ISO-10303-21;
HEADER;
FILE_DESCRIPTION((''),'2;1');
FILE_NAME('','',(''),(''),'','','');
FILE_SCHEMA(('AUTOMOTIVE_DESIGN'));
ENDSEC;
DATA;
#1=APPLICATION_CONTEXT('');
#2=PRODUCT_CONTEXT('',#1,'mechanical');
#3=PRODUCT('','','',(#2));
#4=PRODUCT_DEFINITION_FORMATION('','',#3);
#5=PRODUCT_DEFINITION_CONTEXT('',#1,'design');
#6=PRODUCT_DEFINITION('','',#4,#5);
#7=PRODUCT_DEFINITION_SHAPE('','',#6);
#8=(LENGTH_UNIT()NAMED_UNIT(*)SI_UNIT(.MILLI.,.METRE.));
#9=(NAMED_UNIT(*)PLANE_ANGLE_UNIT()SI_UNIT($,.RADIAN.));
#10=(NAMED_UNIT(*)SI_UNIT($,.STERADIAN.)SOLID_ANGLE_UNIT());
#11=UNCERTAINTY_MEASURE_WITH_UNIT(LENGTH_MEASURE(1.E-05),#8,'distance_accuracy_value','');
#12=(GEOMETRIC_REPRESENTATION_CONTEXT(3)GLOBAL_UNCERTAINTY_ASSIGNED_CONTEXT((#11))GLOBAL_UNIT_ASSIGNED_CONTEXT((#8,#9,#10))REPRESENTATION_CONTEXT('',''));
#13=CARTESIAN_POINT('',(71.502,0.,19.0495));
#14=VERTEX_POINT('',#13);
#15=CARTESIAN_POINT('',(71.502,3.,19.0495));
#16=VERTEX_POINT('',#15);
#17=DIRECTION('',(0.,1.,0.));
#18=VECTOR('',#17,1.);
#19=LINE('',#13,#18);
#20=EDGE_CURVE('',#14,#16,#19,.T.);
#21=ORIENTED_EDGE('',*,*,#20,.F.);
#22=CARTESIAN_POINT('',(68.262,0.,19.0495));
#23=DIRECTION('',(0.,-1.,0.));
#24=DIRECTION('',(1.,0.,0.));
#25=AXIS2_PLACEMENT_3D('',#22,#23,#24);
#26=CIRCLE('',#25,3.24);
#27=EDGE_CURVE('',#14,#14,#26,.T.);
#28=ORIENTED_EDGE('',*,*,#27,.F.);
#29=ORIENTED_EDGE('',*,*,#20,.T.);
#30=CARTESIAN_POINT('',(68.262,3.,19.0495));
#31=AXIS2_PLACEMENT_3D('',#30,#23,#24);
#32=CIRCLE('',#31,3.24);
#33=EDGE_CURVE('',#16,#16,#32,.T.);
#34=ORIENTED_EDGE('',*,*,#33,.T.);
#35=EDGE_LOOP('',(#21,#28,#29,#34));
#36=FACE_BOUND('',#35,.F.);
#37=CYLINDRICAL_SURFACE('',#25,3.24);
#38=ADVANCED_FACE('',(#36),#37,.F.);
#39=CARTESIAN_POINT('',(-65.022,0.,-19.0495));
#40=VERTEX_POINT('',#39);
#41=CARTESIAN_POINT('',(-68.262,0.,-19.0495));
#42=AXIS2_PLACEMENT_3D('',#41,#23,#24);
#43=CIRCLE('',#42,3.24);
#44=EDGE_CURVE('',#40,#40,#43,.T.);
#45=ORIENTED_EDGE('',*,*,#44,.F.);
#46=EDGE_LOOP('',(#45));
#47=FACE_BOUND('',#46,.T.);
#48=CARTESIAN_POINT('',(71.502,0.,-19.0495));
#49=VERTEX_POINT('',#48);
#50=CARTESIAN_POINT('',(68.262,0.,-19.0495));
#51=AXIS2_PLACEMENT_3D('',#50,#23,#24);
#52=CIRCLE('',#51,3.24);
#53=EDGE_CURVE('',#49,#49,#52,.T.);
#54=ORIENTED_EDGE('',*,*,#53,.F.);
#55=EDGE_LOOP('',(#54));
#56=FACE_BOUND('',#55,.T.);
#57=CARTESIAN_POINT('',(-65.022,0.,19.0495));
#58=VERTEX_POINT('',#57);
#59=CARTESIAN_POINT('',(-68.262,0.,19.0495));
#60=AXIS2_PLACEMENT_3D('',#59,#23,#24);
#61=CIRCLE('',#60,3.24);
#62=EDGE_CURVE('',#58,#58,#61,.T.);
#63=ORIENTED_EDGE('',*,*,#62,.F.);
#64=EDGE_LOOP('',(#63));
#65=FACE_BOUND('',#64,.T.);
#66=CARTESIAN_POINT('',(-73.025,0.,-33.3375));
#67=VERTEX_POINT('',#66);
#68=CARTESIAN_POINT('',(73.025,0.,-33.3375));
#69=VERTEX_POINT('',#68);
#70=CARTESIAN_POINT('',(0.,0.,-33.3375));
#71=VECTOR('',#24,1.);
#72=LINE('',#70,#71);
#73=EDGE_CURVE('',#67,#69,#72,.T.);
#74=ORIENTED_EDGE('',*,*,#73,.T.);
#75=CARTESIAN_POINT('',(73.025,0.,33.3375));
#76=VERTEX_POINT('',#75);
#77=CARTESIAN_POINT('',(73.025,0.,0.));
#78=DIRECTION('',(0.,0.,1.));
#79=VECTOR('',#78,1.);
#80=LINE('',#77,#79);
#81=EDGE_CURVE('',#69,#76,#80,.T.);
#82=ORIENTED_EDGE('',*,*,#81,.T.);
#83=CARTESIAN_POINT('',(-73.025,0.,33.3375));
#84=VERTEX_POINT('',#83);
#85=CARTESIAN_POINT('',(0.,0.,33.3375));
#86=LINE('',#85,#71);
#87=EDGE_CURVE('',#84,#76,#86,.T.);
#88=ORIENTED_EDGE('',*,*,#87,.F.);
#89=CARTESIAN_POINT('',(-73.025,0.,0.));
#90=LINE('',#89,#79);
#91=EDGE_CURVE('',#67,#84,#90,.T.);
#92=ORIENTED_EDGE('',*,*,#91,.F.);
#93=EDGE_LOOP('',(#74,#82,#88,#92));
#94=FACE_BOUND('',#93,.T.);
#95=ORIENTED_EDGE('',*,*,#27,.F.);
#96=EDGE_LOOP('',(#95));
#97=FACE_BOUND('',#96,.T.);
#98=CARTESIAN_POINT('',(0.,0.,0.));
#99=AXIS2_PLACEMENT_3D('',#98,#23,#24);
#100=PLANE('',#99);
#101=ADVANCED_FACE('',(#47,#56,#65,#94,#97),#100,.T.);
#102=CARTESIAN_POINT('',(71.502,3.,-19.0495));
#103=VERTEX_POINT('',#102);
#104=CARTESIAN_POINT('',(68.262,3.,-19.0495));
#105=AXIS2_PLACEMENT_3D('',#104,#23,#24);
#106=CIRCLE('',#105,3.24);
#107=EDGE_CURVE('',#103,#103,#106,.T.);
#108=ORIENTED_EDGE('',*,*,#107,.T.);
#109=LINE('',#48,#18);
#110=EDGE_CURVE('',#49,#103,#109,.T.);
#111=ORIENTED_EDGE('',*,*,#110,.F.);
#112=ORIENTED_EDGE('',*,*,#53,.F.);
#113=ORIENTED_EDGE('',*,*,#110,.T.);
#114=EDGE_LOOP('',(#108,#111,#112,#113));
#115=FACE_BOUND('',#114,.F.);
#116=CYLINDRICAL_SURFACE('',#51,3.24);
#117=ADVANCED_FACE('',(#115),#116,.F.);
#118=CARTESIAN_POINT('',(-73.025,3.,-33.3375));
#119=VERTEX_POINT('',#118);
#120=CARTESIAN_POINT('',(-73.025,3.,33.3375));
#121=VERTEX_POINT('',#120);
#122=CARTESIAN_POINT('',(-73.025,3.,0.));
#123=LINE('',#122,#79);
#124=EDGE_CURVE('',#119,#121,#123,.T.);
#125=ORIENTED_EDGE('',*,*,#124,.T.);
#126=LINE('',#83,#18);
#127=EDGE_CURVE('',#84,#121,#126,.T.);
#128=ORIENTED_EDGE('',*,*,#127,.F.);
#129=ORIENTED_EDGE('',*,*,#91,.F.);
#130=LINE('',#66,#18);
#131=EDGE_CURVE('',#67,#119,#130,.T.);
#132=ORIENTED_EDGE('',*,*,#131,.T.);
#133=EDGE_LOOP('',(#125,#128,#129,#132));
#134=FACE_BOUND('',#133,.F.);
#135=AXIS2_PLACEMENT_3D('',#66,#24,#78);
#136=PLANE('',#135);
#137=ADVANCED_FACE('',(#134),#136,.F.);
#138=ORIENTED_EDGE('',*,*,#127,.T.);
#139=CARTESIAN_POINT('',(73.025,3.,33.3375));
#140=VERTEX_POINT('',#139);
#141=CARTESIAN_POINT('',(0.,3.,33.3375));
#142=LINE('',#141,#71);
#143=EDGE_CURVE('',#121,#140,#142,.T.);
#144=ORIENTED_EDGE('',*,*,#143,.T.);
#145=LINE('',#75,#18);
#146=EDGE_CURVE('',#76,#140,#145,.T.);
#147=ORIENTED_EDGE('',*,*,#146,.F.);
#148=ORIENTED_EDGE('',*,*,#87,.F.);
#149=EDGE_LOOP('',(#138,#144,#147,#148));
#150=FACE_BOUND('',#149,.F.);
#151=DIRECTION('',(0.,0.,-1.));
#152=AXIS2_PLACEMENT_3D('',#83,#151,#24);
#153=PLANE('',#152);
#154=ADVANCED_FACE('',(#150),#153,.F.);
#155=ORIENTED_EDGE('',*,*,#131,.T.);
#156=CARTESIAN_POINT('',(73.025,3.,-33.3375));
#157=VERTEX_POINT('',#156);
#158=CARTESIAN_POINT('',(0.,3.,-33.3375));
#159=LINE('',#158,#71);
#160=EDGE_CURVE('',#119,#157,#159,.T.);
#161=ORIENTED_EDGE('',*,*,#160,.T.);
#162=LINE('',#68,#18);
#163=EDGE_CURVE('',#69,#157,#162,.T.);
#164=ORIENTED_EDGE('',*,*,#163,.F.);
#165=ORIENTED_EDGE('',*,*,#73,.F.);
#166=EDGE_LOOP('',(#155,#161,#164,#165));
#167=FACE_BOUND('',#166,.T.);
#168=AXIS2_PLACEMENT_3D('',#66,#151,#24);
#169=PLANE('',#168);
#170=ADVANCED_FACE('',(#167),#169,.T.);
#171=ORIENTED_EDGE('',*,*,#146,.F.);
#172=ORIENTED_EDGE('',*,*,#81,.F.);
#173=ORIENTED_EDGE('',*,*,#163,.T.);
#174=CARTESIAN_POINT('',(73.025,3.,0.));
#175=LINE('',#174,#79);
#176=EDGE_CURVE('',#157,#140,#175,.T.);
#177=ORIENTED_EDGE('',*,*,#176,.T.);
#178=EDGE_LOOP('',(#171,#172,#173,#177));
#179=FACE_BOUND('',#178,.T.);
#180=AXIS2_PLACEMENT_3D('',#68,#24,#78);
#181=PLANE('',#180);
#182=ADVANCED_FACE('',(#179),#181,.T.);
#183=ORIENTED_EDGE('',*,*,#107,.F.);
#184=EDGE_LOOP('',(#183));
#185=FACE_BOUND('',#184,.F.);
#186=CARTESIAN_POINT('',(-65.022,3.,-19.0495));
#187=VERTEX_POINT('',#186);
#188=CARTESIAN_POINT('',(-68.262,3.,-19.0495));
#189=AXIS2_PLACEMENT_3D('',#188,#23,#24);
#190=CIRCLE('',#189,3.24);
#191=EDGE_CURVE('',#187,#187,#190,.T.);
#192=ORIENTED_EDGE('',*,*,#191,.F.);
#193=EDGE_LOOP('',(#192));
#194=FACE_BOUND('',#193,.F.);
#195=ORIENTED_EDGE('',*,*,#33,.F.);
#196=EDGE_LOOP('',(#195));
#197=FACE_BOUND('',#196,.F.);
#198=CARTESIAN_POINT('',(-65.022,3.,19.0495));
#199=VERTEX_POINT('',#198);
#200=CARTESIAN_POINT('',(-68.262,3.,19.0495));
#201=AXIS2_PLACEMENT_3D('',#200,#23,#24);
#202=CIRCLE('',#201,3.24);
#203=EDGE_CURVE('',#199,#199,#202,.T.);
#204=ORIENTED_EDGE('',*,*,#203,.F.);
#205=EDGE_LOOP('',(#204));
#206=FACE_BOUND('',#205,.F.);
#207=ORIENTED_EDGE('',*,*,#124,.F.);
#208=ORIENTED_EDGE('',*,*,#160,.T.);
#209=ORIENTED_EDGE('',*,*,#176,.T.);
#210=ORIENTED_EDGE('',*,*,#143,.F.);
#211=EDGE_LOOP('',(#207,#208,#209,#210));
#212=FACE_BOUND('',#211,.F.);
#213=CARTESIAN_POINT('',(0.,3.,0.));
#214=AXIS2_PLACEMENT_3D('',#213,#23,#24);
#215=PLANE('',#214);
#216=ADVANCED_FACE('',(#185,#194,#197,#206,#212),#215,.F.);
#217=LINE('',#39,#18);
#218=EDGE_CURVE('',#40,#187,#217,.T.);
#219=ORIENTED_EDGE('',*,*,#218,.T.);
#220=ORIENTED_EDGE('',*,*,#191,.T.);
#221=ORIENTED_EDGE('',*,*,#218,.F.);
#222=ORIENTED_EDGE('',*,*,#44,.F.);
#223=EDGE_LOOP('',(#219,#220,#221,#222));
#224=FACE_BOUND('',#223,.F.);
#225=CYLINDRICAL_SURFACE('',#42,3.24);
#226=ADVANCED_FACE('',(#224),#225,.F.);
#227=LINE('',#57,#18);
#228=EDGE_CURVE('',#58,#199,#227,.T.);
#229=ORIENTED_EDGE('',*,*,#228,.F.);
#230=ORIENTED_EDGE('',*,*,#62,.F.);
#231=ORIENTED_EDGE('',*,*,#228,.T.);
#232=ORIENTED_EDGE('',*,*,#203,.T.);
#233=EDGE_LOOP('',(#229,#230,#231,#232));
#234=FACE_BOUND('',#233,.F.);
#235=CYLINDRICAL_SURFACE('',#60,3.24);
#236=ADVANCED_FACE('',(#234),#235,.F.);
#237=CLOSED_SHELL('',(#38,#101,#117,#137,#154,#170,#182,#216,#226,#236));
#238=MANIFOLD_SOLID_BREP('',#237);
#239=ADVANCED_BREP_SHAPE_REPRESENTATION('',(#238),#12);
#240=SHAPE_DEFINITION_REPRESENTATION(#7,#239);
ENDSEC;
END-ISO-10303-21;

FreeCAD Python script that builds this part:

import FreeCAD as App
import Part
import Sketcher
Q = App.Units.Quantity

doc = App.newDocument("Part")
body = doc.addObject("PartDesign::Body", "Body")

# Sketch on XZ plane
sketch1 = body.newObject("Sketcher::SketchObject", "Sketch")
sketch1.AttachmentSupport = (doc.getObject("XZ_Plane"), [""])
sketch1.MapMode = "FlatFace"
sketch1.addGeometry([
    Part.LineSegment(App.Vector(-73, 33.3, 0), App.Vector(-73, -33.3, 0)),  # 0
    Part.LineSegment(App.Vector(-73, -33.3, 0), App.Vector(73, -33.3, 0)),  # 1
    Part.LineSegment(App.Vector(73, -33.3, 0), App.Vector(73, 33.3, 0)),  # 2
    Part.LineSegment(App.Vector(73, 33.3, 0), App.Vector(-73, 33.3, 0)),  # 3
    Part.Circle(App.Vector(-68.3, -19, 0), App.Vector(0, 0, 1), 3.2),  # 4
    Part.Circle(App.Vector(68.3, -19, 0), App.Vector(0, 0, 1), 3.2),  # 5
    Part.Circle(App.Vector(-68.3, 19, 0), App.Vector(0, 0, 1), 3.2),  # 6
    Part.Circle(App.Vector(68.3, 19, 0), App.Vector(0, 0, 1), 3.2),  # 7
], False)
sketch1.addConstraint([
    Sketcher.Constraint("Coincident", 0, 2, 1, 1),
    Sketcher.Constraint("Coincident", 1, 2, 2, 1),
    Sketcher.Constraint("Coincident", 2, 2, 3, 1),
    Sketcher.Constraint("Coincident", 3, 2, 0, 1),
    Sketcher.Constraint("Vertical", 0),
    Sketcher.Constraint("Horizontal", 1),
    Sketcher.Constraint("Vertical", 2),
    Sketcher.Constraint("Horizontal", 3),
    Sketcher.Constraint("Equal", 4, 5),
    Sketcher.Constraint("Equal", 5, 6),
    Sketcher.Constraint("Equal", 6, 7),
    Sketcher.Constraint("Symmetric", 5, 3, 6, 3, -1, 1),
    Sketcher.Constraint("Symmetric", 4, 3, 7, 3, -1, 1),
    Sketcher.Constraint("Symmetric", 0, 2, 2, 2, -1, 1),
    Sketcher.Constraint("Symmetric", 4, 3, 5, 3, -2),
    Sketcher.Constraint("DistanceX", 1, 1, 1, 2, Q("5.75 in")),
    Sketcher.Constraint("Diameter", 4, Q("6.48 mm")),
    Sketcher.Constraint("DistanceY", 0, 2, 0, 1, Q("2.625 in")),
    Sketcher.Constraint("DistanceX", 4, 3, -1, 1, Q("68.262 mm")),
    Sketcher.Constraint("DistanceY", 4, 3, -1, 1, Q("19.0495 mm")),
])
pad1 = body.newObject("PartDesign::Pad", "Pad")
pad1.Profile = sketch1
pad1.Length = 3
pad1.Reversed = True

doc.recompute()
